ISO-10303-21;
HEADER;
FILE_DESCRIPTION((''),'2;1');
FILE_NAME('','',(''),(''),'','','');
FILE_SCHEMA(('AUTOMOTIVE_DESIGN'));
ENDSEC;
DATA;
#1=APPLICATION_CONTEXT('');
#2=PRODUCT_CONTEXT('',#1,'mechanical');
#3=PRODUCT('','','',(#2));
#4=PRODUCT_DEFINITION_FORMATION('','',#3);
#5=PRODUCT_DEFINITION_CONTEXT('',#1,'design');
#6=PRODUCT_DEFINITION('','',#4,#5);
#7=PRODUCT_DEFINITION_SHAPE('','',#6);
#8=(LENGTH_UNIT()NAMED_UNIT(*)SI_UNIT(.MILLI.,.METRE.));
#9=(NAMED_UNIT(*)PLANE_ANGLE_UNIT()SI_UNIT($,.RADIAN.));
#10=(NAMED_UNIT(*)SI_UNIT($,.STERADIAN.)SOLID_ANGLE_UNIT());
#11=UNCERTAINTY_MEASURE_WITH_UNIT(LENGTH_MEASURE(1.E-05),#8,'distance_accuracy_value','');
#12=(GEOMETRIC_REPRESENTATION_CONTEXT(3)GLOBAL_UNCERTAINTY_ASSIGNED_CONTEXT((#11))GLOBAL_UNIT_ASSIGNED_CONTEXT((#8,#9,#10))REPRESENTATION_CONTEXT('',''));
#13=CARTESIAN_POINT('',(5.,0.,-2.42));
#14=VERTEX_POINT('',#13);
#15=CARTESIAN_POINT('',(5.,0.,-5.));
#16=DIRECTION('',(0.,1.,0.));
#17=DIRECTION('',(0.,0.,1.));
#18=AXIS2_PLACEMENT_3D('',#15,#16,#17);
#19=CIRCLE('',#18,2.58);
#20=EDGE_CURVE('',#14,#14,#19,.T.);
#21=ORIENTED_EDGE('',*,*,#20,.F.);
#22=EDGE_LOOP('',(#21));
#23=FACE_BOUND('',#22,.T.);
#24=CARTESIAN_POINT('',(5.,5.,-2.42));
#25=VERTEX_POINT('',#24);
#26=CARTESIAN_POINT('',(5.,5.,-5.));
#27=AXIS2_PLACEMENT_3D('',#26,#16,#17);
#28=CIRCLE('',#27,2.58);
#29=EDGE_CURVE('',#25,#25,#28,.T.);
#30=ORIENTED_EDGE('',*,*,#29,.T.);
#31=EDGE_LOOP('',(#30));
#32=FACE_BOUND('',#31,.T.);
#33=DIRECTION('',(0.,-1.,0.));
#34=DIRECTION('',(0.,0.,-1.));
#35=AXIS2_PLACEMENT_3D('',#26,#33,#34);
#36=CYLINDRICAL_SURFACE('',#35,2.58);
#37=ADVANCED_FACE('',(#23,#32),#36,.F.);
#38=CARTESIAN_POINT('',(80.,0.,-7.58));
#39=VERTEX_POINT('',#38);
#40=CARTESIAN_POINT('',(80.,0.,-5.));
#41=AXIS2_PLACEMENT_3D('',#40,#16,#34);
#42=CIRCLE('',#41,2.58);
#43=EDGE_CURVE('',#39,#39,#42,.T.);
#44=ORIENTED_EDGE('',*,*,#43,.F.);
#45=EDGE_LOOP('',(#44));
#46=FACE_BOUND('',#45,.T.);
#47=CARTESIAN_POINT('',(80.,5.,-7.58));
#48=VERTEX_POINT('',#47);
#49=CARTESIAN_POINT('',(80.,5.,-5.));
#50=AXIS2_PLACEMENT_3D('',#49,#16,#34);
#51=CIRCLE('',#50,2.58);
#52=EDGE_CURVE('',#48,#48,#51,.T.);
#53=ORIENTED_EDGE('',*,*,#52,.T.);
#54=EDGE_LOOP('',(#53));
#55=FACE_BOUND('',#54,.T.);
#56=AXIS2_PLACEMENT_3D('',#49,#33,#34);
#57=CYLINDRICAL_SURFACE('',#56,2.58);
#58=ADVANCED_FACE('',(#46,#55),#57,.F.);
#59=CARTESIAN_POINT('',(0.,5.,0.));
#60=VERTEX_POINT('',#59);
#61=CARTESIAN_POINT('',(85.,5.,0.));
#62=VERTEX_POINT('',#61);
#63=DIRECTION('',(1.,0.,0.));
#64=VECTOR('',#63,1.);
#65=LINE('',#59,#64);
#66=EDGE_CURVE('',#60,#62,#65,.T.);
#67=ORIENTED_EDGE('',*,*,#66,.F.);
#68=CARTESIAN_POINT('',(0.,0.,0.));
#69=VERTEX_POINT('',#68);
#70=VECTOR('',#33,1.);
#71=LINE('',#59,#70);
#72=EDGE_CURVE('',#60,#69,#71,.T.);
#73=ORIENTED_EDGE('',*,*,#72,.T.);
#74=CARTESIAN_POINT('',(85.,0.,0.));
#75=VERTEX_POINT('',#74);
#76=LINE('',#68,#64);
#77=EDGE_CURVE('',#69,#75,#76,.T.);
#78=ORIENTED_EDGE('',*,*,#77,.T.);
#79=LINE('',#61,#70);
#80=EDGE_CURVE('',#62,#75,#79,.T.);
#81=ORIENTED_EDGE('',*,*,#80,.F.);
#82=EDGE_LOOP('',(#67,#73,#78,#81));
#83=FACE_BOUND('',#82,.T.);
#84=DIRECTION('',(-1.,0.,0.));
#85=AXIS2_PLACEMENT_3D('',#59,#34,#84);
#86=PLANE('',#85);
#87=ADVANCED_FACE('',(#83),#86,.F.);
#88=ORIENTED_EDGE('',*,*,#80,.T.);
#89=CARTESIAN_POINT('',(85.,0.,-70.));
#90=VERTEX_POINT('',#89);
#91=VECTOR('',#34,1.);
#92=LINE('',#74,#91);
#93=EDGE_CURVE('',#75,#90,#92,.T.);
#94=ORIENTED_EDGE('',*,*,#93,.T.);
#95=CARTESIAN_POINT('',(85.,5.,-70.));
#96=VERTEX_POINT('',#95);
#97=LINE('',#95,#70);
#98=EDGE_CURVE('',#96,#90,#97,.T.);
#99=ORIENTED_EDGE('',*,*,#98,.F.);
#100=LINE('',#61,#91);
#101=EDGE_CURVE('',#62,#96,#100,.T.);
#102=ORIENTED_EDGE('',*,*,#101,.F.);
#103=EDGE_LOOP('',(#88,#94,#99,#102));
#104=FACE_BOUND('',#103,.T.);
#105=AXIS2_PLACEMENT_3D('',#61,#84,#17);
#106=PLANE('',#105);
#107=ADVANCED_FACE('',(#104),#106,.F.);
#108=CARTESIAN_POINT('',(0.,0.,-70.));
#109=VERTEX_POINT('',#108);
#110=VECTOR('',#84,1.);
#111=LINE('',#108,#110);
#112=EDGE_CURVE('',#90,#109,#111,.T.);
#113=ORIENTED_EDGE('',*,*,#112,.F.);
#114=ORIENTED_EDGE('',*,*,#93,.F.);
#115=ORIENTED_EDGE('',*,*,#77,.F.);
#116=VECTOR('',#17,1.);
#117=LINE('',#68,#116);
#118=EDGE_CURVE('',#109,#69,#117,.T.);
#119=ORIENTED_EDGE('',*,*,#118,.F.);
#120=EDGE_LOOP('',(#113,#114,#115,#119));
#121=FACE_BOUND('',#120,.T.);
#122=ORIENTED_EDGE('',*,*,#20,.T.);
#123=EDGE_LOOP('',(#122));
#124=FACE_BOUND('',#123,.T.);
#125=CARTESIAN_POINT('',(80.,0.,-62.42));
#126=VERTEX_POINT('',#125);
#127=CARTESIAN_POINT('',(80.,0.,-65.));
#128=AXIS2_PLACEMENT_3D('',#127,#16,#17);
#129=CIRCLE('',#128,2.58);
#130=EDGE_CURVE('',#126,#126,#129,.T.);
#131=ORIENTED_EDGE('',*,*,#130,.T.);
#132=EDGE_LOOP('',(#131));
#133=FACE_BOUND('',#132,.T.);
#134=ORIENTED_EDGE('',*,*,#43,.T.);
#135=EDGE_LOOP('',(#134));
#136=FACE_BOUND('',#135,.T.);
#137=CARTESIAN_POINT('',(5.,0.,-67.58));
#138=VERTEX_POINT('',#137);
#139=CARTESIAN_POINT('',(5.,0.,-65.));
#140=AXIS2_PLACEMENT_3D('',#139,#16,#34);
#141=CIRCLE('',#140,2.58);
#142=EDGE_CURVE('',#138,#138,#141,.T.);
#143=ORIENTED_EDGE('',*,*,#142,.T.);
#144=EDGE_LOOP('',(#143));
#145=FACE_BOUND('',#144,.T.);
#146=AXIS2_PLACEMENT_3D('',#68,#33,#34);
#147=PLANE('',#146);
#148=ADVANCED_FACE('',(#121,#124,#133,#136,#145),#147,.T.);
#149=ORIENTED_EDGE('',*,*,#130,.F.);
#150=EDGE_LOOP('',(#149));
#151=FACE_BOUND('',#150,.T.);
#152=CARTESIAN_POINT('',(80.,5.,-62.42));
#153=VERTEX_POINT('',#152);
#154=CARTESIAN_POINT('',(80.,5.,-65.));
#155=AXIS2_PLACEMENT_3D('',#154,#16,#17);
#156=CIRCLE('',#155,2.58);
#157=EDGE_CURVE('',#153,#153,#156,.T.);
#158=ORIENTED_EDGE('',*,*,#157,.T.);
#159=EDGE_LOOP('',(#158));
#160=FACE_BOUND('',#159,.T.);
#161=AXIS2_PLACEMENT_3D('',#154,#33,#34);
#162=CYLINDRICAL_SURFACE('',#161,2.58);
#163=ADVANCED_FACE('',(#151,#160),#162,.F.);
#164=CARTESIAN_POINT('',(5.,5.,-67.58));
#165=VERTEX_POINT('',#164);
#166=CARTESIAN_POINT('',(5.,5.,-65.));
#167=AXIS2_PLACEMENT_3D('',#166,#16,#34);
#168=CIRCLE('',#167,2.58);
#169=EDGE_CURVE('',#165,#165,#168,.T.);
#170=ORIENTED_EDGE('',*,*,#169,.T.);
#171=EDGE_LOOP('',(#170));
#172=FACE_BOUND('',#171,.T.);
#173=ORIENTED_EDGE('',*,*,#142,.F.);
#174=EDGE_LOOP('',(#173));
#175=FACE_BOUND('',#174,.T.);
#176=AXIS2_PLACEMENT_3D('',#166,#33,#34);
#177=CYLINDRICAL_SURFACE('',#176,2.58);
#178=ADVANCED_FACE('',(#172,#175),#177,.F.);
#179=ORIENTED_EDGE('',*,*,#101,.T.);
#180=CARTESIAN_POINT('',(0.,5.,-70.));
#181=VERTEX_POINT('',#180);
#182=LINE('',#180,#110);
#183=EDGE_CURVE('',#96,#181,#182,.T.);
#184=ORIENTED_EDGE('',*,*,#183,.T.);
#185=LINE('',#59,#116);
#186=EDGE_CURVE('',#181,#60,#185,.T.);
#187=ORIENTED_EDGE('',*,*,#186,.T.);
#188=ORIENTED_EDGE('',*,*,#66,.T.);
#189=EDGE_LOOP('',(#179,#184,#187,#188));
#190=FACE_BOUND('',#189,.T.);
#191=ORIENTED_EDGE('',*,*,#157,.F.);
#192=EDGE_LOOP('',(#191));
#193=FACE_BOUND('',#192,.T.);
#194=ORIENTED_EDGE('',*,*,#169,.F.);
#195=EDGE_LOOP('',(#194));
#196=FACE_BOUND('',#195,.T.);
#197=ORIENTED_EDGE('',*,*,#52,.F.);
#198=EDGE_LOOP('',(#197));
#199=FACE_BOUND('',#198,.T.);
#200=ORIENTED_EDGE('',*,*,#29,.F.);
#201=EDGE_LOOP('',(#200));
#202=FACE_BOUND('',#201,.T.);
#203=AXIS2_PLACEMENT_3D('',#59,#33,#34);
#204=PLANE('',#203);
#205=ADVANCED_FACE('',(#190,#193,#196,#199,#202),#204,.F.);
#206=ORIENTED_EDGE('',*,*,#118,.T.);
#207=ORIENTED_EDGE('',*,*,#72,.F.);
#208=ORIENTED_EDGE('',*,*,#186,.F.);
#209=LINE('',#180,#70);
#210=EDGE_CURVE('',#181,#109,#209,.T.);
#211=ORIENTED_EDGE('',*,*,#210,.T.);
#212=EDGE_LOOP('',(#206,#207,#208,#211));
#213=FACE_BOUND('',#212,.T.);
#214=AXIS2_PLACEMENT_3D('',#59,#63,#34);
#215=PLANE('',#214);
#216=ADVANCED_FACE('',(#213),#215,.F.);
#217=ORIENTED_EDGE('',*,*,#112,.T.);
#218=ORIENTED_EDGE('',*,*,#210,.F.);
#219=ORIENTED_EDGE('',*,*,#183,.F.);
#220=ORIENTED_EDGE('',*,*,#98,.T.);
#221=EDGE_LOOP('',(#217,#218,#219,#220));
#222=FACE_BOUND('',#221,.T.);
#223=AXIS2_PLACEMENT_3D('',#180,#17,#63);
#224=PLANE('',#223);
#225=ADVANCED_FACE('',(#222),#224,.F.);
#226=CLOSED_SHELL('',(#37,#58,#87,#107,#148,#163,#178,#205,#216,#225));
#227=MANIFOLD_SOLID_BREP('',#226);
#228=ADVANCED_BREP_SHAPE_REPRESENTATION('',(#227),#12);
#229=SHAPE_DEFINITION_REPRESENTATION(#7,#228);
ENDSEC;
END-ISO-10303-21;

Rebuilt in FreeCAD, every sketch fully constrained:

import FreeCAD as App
import Part
import Sketcher
Q = App.Units.Quantity

doc = App.newDocument("Part")
body = doc.addObject("PartDesign::Body", "Body")

# Sketch on XZ plane
sketch1 = body.newObject("Sketcher::SketchObject", "Sketch")
sketch1.AttachmentSupport = (doc.getObject("XZ_Plane"), [""])
sketch1.MapMode = "FlatFace"
sketch1.addGeometry([
    Part.LineSegment(App.Vector(0, -70, 0), App.Vector(0, 0, 0)),  # 0
    Part.LineSegment(App.Vector(0, 0, 0), App.Vector(85, 0, 0)),  # 1
    Part.LineSegment(App.Vector(85, 0, 0), App.Vector(85, -70, 0)),  # 2
    Part.LineSegment(App.Vector(85, -70, 0), App.Vector(0, -70, 0)),  # 3
    Part.Circle(App.Vector(5, -5, 0), App.Vector(0, 0, 1), 2.6),  # 4
    Part.Circle(App.Vector(80, -5, 0), App.Vector(0, 0, 1), 2.6),  # 5
    Part.Circle(App.Vector(5, -65, 0), App.Vector(0, 0, 1), 2.6),  # 6
    Part.Circle(App.Vector(80, -65, 0), App.Vector(0, 0, 1), 2.6),  # 7
], False)
sketch1.addConstraint([
    Sketcher.Constraint("Coincident", 0, 2, 1, 1),
    Sketcher.Constraint("Coincident", 1, 2, 2, 1),
    Sketcher.Constraint("Coincident", 2, 2, 3, 1),
    Sketcher.Constraint("Coincident", 3, 2, 0, 1),
    Sketcher.Constraint("Vertical", 0),
    Sketcher.Constraint("Horizontal", 1),
    Sketcher.Constraint("Vertical", 2),
    Sketcher.Constraint("Horizontal", 3),
    Sketcher.Constraint("Coincident", 0, 2, -1, 1),
    Sketcher.Constraint("Equal", 4, 5),
    Sketcher.Constraint("Equal", 5, 6),
    Sketcher.Constraint("Equal", 6, 7),
    Sketcher.Constraint("Horizontal", 4, 3, 5, 3),
    Sketcher.Constraint("Horizontal", 6, 3, 7, 3),
    Sketcher.Constraint("Vertical", 4, 3, 6, 3),
    Sketcher.Constraint("Vertical", 5, 3, 7, 3),
    Sketcher.Constraint("Diameter", 4, Q("5.16 mm")),
    Sketcher.Constraint("DistanceX", 1, 1, 1, 2, Q("85 mm")),
    Sketcher.Constraint("DistanceY", 0, 1, 0, 2, Q("70 mm")),
    Sketcher.Constraint("DistanceX", -1, 1, 4, 3, Q("5 mm")),
    Sketcher.Constraint("DistanceY", 4, 3, -1, 1, Q("5 mm")),
    Sketcher.Constraint("DistanceX", -1, 1, 5, 3, Q("80 mm")),
    Sketcher.Constraint("DistanceY", 6, 3, -1, 1, Q("65 mm")),
])
pad1 = body.newObject("PartDesign::Pad", "Pad")
pad1.Profile = sketch1
pad1.Length = 5
pad1.Reversed = True

doc.recompute()
